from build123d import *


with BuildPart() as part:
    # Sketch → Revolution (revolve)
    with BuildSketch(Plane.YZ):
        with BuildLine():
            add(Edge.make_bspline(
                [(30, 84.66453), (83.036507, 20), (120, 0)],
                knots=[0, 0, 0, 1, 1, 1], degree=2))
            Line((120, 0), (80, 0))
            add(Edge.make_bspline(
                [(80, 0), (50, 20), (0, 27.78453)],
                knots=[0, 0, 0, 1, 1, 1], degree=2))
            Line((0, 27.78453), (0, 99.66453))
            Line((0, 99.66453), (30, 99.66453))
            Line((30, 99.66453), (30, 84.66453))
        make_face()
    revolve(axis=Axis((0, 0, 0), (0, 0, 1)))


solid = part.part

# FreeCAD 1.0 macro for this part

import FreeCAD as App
import Part
import Sketcher

V = App.Vector

doc = App.newDocument("Part")
body = doc.addObject("PartDesign::Body", "Body")

sketch1 = body.newObject("Sketcher::SketchObject", "Sketch")
sketch1.AttachmentSupport = (doc.getObject("YZ_Plane"), [""])
sketch1.MapMode = "FlatFace"
sketch1.addGeometry([
    Part.BSplineCurve([V(30, 84.66453, 0), V(83.036507, 20, 0), V(120, 0, 0)], [3, 3], [0, 1], False, 2, [1, 1, 1], False),
    Part.LineSegment(V(30, 84.66453, 0), V(30, 99.66453, 0)),
    Part.LineSegment(V(30, 99.66453, 0), V(0, 99.66453, 0)),
    Part.LineSegment(V(0, 99.66453, 0), V(0, 27.78453, 0)),
    Part.BSplineCurve([V(80, 0, 0), V(50, 20, 0), V(0, 27.78453, 0)], [3, 3], [0, 1], False, 2, [1, 1, 1], False),
    Part.LineSegment(V(80, 0, 0), V(120, 0, 0)),
], False)
sketch1.addConstraint([
    Sketcher.Constraint("Block", 0),
    Sketcher.Constraint("Block", 4),
    Sketcher.Constraint("Coincident", 0, 1, 1, 1),
    Sketcher.Constraint("Coincident", 1, 2, 2, 1),
    Sketcher.Constraint("Coincident", 2, 2, 3, 1),
    Sketcher.Constraint("Coincident", 3, 2, 4, 2),
    Sketcher.Constraint("Coincident", 4, 1, 5, 1),
    Sketcher.Constraint("Coincident", 5, 2, 0, 2),
    Sketcher.Constraint("Vertical", 1),
    Sketcher.Constraint("Horizontal", 2),
    Sketcher.Constraint("Vertical", 3),
    Sketcher.Constraint("DistanceY", 1, 1, 1, 2, 15.0),
])
revolution = body.newObject("PartDesign::Revolution", "Revolution")
revolution.Profile = sketch1
revolution.ReferenceAxis = (sketch1, ["V_Axis"])
revolution.Angle = 360

doc.recompute()
